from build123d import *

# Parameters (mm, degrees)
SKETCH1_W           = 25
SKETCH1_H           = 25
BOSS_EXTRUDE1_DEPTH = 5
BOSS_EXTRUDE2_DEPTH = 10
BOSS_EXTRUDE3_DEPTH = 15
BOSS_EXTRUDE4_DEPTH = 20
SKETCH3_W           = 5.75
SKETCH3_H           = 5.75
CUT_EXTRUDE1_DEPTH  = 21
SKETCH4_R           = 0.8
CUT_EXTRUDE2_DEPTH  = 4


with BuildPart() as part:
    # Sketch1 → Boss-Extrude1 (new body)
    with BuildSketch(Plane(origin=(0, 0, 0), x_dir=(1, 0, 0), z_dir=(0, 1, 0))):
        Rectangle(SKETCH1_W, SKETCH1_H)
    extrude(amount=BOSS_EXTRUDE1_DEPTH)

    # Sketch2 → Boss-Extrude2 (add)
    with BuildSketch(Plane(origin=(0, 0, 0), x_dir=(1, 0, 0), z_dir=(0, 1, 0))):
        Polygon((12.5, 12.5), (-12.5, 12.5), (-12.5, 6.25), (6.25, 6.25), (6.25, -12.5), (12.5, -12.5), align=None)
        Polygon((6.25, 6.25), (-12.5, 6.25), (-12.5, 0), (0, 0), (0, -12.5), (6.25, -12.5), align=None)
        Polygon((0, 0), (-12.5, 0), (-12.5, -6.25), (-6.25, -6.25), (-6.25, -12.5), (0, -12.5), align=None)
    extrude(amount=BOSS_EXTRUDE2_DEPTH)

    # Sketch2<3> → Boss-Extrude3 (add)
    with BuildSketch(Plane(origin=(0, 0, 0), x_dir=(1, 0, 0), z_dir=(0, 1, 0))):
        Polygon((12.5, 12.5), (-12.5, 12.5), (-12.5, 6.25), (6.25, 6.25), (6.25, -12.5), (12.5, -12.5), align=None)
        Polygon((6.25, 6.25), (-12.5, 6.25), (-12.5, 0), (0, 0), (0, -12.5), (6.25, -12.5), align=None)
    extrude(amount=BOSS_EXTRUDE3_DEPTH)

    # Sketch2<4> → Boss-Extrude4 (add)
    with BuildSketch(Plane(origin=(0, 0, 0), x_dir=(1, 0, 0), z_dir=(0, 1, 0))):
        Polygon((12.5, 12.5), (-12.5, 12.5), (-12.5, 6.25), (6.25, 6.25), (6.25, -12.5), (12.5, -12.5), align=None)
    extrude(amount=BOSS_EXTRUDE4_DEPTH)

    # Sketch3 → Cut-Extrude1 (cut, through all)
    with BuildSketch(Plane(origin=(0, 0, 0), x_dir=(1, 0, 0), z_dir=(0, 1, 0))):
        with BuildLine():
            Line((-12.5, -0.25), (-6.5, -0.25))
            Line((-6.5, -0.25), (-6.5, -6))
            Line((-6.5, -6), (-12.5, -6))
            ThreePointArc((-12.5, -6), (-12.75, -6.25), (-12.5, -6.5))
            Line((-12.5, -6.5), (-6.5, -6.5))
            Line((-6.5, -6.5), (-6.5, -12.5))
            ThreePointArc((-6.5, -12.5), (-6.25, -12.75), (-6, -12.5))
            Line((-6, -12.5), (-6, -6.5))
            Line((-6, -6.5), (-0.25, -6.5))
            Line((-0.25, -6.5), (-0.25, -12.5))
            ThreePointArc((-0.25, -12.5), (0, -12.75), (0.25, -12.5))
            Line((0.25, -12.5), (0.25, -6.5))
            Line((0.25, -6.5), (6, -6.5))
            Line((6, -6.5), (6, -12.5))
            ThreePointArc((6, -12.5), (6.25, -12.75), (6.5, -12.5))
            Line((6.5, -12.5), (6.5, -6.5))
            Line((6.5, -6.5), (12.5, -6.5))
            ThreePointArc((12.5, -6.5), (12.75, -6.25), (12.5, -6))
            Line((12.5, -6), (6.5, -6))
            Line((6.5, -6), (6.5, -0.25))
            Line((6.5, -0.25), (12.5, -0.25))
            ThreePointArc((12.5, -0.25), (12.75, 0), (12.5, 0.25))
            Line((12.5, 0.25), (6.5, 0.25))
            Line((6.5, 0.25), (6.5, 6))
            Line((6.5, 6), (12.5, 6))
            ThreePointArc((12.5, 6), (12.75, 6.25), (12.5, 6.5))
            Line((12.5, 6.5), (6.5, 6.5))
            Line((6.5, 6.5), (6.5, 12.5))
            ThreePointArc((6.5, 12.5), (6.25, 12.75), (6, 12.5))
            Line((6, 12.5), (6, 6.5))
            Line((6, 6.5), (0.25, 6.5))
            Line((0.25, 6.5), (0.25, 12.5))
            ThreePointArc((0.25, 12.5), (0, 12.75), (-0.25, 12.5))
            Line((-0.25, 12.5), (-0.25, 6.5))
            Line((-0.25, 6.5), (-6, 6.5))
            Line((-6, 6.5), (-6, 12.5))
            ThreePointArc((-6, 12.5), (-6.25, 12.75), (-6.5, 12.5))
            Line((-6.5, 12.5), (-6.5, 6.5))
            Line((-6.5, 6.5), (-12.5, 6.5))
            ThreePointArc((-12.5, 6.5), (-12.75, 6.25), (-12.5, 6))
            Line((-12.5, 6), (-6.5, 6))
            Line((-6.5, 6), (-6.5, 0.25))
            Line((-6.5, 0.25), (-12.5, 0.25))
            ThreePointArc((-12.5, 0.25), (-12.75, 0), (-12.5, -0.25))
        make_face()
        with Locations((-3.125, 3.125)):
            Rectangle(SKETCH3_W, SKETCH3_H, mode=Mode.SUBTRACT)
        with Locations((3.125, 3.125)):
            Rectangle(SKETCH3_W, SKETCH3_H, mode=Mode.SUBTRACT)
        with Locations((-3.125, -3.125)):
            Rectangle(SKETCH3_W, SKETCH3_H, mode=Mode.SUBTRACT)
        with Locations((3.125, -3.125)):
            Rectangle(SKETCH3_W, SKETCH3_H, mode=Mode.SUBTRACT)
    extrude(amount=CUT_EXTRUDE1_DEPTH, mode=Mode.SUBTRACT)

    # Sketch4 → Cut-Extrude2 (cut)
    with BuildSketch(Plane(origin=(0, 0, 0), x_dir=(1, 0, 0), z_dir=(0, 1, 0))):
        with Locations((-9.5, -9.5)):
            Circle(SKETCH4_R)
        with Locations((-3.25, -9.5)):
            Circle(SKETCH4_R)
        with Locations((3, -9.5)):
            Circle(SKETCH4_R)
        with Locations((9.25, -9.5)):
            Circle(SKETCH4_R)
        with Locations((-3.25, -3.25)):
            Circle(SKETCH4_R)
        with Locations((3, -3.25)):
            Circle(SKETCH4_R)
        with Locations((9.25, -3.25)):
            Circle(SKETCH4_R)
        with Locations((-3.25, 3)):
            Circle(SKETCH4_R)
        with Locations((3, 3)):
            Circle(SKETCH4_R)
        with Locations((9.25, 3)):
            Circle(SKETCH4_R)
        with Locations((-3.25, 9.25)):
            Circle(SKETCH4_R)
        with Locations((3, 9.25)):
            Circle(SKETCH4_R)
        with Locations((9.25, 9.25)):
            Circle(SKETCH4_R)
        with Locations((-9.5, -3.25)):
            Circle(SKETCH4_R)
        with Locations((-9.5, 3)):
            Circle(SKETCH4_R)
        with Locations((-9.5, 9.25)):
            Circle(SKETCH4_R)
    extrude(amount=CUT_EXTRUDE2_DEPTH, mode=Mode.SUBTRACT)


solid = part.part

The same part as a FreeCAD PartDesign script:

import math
import FreeCAD as App
import Part
import Sketcher

V = App.Vector


def add_polygon(sketch, points):
    """Adds a closed chain of lines whose ends are joined by coincident constraints."""
    first, n = sketch.GeometryCount, len(points)
    for a, b in zip(points, points[1:] + points[:1]):
        sketch.addGeometry(Part.LineSegment(App.Vector(*a, 0), App.Vector(*b, 0)), False)
    for i in range(n):
        sketch.addConstraint(Sketcher.Constraint("Coincident", first + i, 2, first + (i + 1) % n, 1))

doc = App.newDocument("Part")
body = doc.addObject("PartDesign::Body", "Body")
body.AllowCompound = True

# Sketch on XZ plane
sketch1 = doc.addObject("Sketcher::SketchObject", "Sketch")
body.addObject(sketch1)
sketch1.AttachmentSupport = (doc.XZ_Plane, [""])
sketch1.MapMode = "FlatFace"
add_polygon(sketch1, [(-12, -12), (-12, 12), (12, 12), (12, -12)])  # lines 0-3
sketch1.addConstraint(Sketcher.Constraint("Vertical", 0))
sketch1.addConstraint(Sketcher.Constraint("Horizontal", 1))
sketch1.addConstraint(Sketcher.Constraint("Vertical", 2))
sketch1.addConstraint(Sketcher.Constraint("Horizontal", 3))
sketch1.addConstraint(Sketcher.Constraint("Symmetric", 0, 2, 2, 2, -1, 1))
sketch1.addConstraint(Sketcher.Constraint("Equal", 3, 0))
sketch1.addConstraint(Sketcher.Constraint("DistanceX", 1, 1, 1, 2, 25.0))
pad1 = doc.addObject("PartDesign::Pad", "Pad")
body.addObject(pad1)
pad1.Profile = sketch1
pad1.Length = 5
pad1.Reversed = True

# Sketch on XZ plane
sketch2 = doc.addObject("Sketcher::SketchObject", "Sketch001")
body.addObject(sketch2)
sketch2.AttachmentSupport = (doc.XZ_Plane, [""])
sketch2.MapMode = "FlatFace"
add_polygon(sketch2, [(12, -12), (-12, -12), (-12, 6), (-6, 6), (-6, 12), (12, 12)])  # lines 0-5
sketch2.addConstraint(Sketcher.Constraint("Horizontal", 0))
sketch2.addConstraint(Sketcher.Constraint("Vertical", 1))
sketch2.addConstraint(Sketcher.Constraint("Horizontal", 2))
sketch2.addConstraint(Sketcher.Constraint("Vertical", 3))
sketch2.addConstraint(Sketcher.Constraint("Horizontal", 4))
sketch2.addConstraint(Sketcher.Constraint("Vertical", 5))
sketch2.addConstraint(Sketcher.Constraint("Symmetric", 0, 2, 4, 2, -1, 1))
sketch2.addConstraint(Sketcher.Constraint("Equal", 4, 1))
sketch2.addConstraint(Sketcher.Constraint("Equal", 2, 3))
sketch2.addConstraint(Sketcher.Constraint("DistanceX", 0, 2, 0, 1, 25.0))
sketch2.addConstraint(Sketcher.Constraint("DistanceX", 2, 1, 2, 2, 6.25))
pad2 = doc.addObject("PartDesign::Pad", "Pad001")
body.addObject(pad2)
pad2.Profile = sketch2
pad2.Length = 10
pad2.Reversed = True

# Sketch on XZ plane
sketch3 = doc.addObject("Sketcher::SketchObject", "Sketch002")
body.addObject(sketch3)
sketch3.AttachmentSupport = (doc.XZ_Plane, [""])
sketch3.MapMode = "FlatFace"
add_polygon(sketch3, [(12, -12), (-12, -12), (-12, 0), (0, 0), (0, 12), (12, 12)])  # lines 0-5
sketch3.addConstraint(Sketcher.Constraint("Horizontal", 0))
sketch3.addConstraint(Sketcher.Constraint("Vertical", 1))
sketch3.addConstraint(Sketcher.Constraint("Horizontal", 2))
sketch3.addConstraint(Sketcher.Constraint("Vertical", 3))
sketch3.addConstraint(Sketcher.Constraint("Horizontal", 4))
sketch3.addConstraint(Sketcher.Constraint("Vertical", 5))
sketch3.addConstraint(Sketcher.Constraint("Coincident", 2, 2, -1, 1))
sketch3.addConstraint(Sketcher.Constraint("Symmetric", 0, 2, 4, 2, -1, 1))
sketch3.addConstraint(Sketcher.Constraint("Equal", 4, 1))
sketch3.addConstraint(Sketcher.Constraint("DistanceX", 0, 2, 0, 1, 25.0))
pad3 = doc.addObject("PartDesign::Pad", "Pad002")
body.addObject(pad3)
pad3.Profile = sketch3
pad3.Length = 15
pad3.Reversed = True

# Sketch on XZ plane
sketch4 = doc.addObject("Sketcher::SketchObject", "Sketch003")
body.addObject(sketch4)
sketch4.AttachmentSupport = (doc.XZ_Plane, [""])
sketch4.MapMode = "FlatFace"
add_polygon(sketch4, [(12, -12), (-12, -12), (-12, -6), (6, -6), (6, 12), (12, 12)])  # lines 0-5
sketch4.addConstraint(Sketcher.Constraint("Horizontal", 0))
sketch4.addConstraint(Sketcher.Constraint("Vertical", 1))
sketch4.addConstraint(Sketcher.Constraint("Horizontal", 2))
sketch4.addConstraint(Sketcher.Constraint("Vertical", 3))
sketch4.addConstraint(Sketcher.Constraint("Horizontal", 4))
sketch4.addConstraint(Sketcher.Constraint("Vertical", 5))
sketch4.addConstraint(Sketcher.Constraint("Symmetric", 0, 2, 4, 2, -1, 1))
sketch4.addConstraint(Sketcher.Constraint("Equal", 4, 1))
sketch4.addConstraint(Sketcher.Constraint("Equal", 2, 3))
sketch4.addConstraint(Sketcher.Constraint("DistanceX", 0, 2, 0, 1, 25.0))
sketch4.addConstraint(Sketcher.Constraint("DistanceX", 2, 1, 2, 2, 18.75))
pad4 = doc.addObject("PartDesign::Pad", "Pad003")
body.addObject(pad4)
pad4.Profile = sketch4
pad4.Length = 20
pad4.Reversed = True

# Sketch on XZ plane
sketch5 = doc.addObject("Sketcher::SketchObject", "Sketch004")
body.addObject(sketch5)
sketch5.AttachmentSupport = (doc.XZ_Plane, [""])
sketch5.MapMode = "FlatFace"
sketch5.addGeometry(Part.LineSegment(V(-12.5, 0.25, 0), V(-6.5, 0.25, 0)), False)  # 0
sketch5.addGeometry(Part.LineSegment(V(-6.5, 0.25, 0), V(-6.5, 6, 0)), False)  # 1
sketch5.addGeometry(Part.LineSegment(V(-6.5, 6, 0), V(-12.5, 6, 0)), False)  # 2
sketch5.addGeometry(Part.ArcOfCircle(Part.Circle(V(-12.5, 6.25, 0), V(0, 0, 1), 0.25), math.radians(90), math.radians(270)), False)  # 3
sketch5.addGeometry(Part.LineSegment(V(-12.5, 6.5, 0), V(-6.5, 6.5, 0)), False)  # 4
sketch5.addGeometry(Part.LineSegment(V(-6.5, 6.5, 0), V(-6.5, 12.5, 0)), False)  # 5
sketch5.addGeometry(Part.ArcOfCircle(Part.Circle(V(-6.25, 12.5, 0), V(0, 0, 1), 0.25), math.radians(0), math.radians(180)), False)  # 6
sketch5.addGeometry(Part.LineSegment(V(-6, 12.5, 0), V(-6, 6.5, 0)), False)  # 7
sketch5.addGeometry(Part.LineSegment(V(-6, 6.5, 0), V(-0.25, 6.5, 0)), False)  # 8
sketch5.addGeometry(Part.LineSegment(V(-0.25, 6.5, 0), V(-0.25, 12.5, 0)), False)  # 9
sketch5.addGeometry(Part.ArcOfCircle(Part.Circle(V(0, 12.5, 0), V(0, 0, 1), 0.25), math.radians(0), math.radians(180)), False)  # 10
sketch5.addGeometry(Part.LineSegment(V(0.25, 12.5, 0), V(0.25, 6.5, 0)), False)  # 11
sketch5.addGeometry(Part.LineSegment(V(0.25, 6.5, 0), V(6, 6.5, 0)), False)  # 12
sketch5.addGeometry(Part.LineSegment(V(6, 6.5, 0), V(6, 12.5, 0)), False)  # 13
sketch5.addGeometry(Part.ArcOfCircle(Part.Circle(V(6.25, 12.5, 0), V(0, 0, 1), 0.25), math.radians(0), math.radians(180)), False)  # 14
sketch5.addGeometry(Part.LineSegment(V(6.5, 12.5, 0), V(6.5, 6.5, 0)), False)  # 15
sketch5.addGeometry(Part.LineSegment(V(6.5, 6.5, 0), V(12.5, 6.5, 0)), False)  # 16
sketch5.addGeometry(Part.ArcOfCircle(Part.Circle(V(12.5, 6.25, 0), V(0, 0, 1), 0.25), math.radians(-90), math.radians(90)), False)  # 17
sketch5.addGeometry(Part.LineSegment(V(12.5, 6, 0), V(6.5, 6, 0)), False)  # 18
sketch5.addGeometry(Part.LineSegment(V(6.5, 6, 0), V(6.5, 0.25, 0)), False)  # 19
sketch5.addGeometry(Part.LineSegment(V(6.5, 0.25, 0), V(12.5, 0.25, 0)), False)  # 20
sketch5.addGeometry(Part.ArcOfCircle(Part.Circle(V(12.5, 0, 0), V(0, 0, 1), 0.25), math.radians(-90), math.radians(90)), False)  # 21
sketch5.addGeometry(Part.LineSegment(V(12.5, -0.25, 0), V(6.5, -0.25, 0)), False)  # 22
sketch5.addGeometry(Part.LineSegment(V(6.5, -0.25, 0), V(6.5, -6, 0)), False)  # 23
sketch5.addGeometry(Part.LineSegment(V(6.5, -6, 0), V(12.5, -6, 0)), False)  # 24
sketch5.addGeometry(Part.ArcOfCircle(Part.Circle(V(12.5, -6.25, 0), V(0, 0, 1), 0.25), math.radians(-90), math.radians(90)), False)  # 25
sketch5.addGeometry(Part.LineSegment(V(12.5, -6.5, 0), V(6.5, -6.5, 0)), False)  # 26
sketch5.addGeometry(Part.LineSegment(V(6.5, -6.5, 0), V(6.5, -12.5, 0)), False)  # 27
sketch5.addGeometry(Part.ArcOfCircle(Part.Circle(V(6.25, -12.5, 0), V(0, 0, 1), 0.25), math.radians(180), math.radians(360)), False)  # 28
sketch5.addGeometry(Part.LineSegment(V(6, -12.5, 0), V(6, -6.5, 0)), False)  # 29
sketch5.addGeometry(Part.LineSegment(V(6, -6.5, 0), V(0.25, -6.5, 0)), False)  # 30
sketch5.addGeometry(Part.LineSegment(V(0.25, -6.5, 0), V(0.25, -12.5, 0)), False)  # 31
sketch5.addGeometry(Part.ArcOfCircle(Part.Circle(V(0, -12.5, 0), V(0, 0, 1), 0.25), math.radians(180), math.radians(360)), False)  # 32
sketch5.addGeometry(Part.LineSegment(V(-0.25, -12.5, 0), V(-0.25, -6.5, 0)), False)  # 33
sketch5.addGeometry(Part.LineSegment(V(-0.25, -6.5, 0), V(-6, -6.5, 0)), False)  # 34
sketch5.addGeometry(Part.LineSegment(V(-6, -6.5, 0), V(-6, -12.5, 0)), False)  # 35
sketch5.addGeometry(Part.ArcOfCircle(Part.Circle(V(-6.25, -12.5, 0), V(0, 0, 1), 0.25), math.radians(180), math.radians(360)), False)  # 36
sketch5.addGeometry(Part.LineSegment(V(-6.5, -12.5, 0), V(-6.5, -6.5, 0)), False)  # 37
sketch5.addGeometry(Part.LineSegment(V(-6.5, -6.5, 0), V(-12.5, -6.5, 0)), False)  # 38
sketch5.addGeometry(Part.ArcOfCircle(Part.Circle(V(-12.5, -6.25, 0), V(0, 0, 1), 0.25), math.radians(90), math.radians(270)), False)  # 39
sketch5.addGeometry(Part.LineSegment(V(-12.5, -6, 0), V(-6.5, -6, 0)), False)  # 40
sketch5.addGeometry(Part.LineSegment(V(-6.5, -6, 0), V(-6.5, -0.25, 0)), False)  # 41
sketch5.addGeometry(Part.LineSegment(V(-6.5, -0.25, 0), V(-12.5, -0.25, 0)), False)  # 42
sketch5.addGeometry(Part.ArcOfCircle(Part.Circle(V(-12.5, 0, 0), V(0, 0, 1), 0.25), math.radians(90), math.radians(270)), False)  # 43
add_polygon(sketch5, [(-0.25, 6), (-6, 6), (-6, 0.25), (-0.25, 0.25)])  # lines 44-47
add_polygon(sketch5, [(6, 6), (0.25, 6), (0.25, 0.25), (6, 0.25)])  # lines 48-51
add_polygon(sketch5, [(-0.25, -0.25), (-6, -0.25), (-6, -6), (-0.25, -6)])  # lines 52-55
add_polygon(sketch5, [(6, -0.25), (0.25, -0.25), (0.25, -6), (6, -6)])  # lines 56-59
sketch5.addConstraint(Sketcher.Constraint("Coincident", 0, 2, 1, 1))
sketch5.addConstraint(Sketcher.Constraint("Coincident", 1, 2, 2, 1))
sketch5.addConstraint(Sketcher.Constraint("Tangent", 2, 2, 3, 2))
sketch5.addConstraint(Sketcher.Constraint("Tangent", 3, 1, 4, 1))
sketch5.addConstraint(Sketcher.Constraint("Coincident", 4, 2, 5, 1))
sketch5.addConstraint(Sketcher.Constraint("Tangent", 5, 2, 6, 2))
sketch5.addConstraint(Sketcher.Constraint("Tangent", 6, 1, 7, 1))
sketch5.addConstraint(Sketcher.Constraint("Coincident", 7, 2, 8, 1))
sketch5.addConstraint(Sketcher.Constraint("Coincident", 8, 2, 9, 1))
sketch5.addConstraint(Sketcher.Constraint("Tangent", 9, 2, 10, 2))
sketch5.addConstraint(Sketcher.Constraint("Tangent", 10, 1, 11, 1))
sketch5.addConstraint(Sketcher.Constraint("Coincident", 11, 2, 12, 1))
sketch5.addConstraint(Sketcher.Constraint("Coincident", 12, 2, 13, 1))
sketch5.addConstraint(Sketcher.Constraint("Tangent", 13, 2, 14, 2))
sketch5.addConstraint(Sketcher.Constraint("Tangent", 14, 1, 15, 1))
sketch5.addConstraint(Sketcher.Constraint("Coincident", 15, 2, 16, 1))
sketch5.addConstraint(Sketcher.Constraint("Tangent", 16, 2, 17, 2))
sketch5.addConstraint(Sketcher.Constraint("Tangent", 17, 1, 18, 1))
sketch5.addConstraint(Sketcher.Constraint("Coincident", 18, 2, 19, 1))
sketch5.addConstraint(Sketcher.Constraint("Coincident", 19, 2, 20, 1))
sketch5.addConstraint(Sketcher.Constraint("Tangent", 20, 2, 21, 2))
sketch5.addConstraint(Sketcher.Constraint("Tangent", 21, 1, 22, 1))
sketch5.addConstraint(Sketcher.Constraint("Coincident", 22, 2, 23, 1))
sketch5.addConstraint(Sketcher.Constraint("Coincident", 23, 2, 24, 1))
sketch5.addConstraint(Sketcher.Constraint("Tangent", 24, 2, 25, 2))
sketch5.addConstraint(Sketcher.Constraint("Tangent", 25, 1, 26, 1))
sketch5.addConstraint(Sketcher.Constraint("Coincident", 26, 2, 27, 1))
sketch5.addConstraint(Sketcher.Constraint("Tangent", 27, 2, 28, 2))
sketch5.addConstraint(Sketcher.Constraint("Tangent", 28, 1, 29, 1))
sketch5.addConstraint(Sketcher.Constraint("Coincident", 29, 2, 30, 1))
sketch5.addConstraint(Sketcher.Constraint("Coincident", 30, 2, 31, 1))
sketch5.addConstraint(Sketcher.Constraint("Tangent", 31, 2, 32, 2))
sketch5.addConstraint(Sketcher.Constraint("Tangent", 32, 1, 33, 1))
sketch5.addConstraint(Sketcher.Constraint("Coincident", 33, 2, 34, 1))
sketch5.addConstraint(Sketcher.Constraint("Coincident", 34, 2, 35, 1))
sketch5.addConstraint(Sketcher.Constraint("Tangent", 35, 2, 36, 2))
sketch5.addConstraint(Sketcher.Constraint("Tangent", 36, 1, 37, 1))
sketch5.addConstraint(Sketcher.Constraint("Coincident", 37, 2, 38, 1))
sketch5.addConstraint(Sketcher.Constraint("Tangent", 38, 2, 39, 2))
sketch5.addConstraint(Sketcher.Constraint("Tangent", 39, 1, 40, 1))
sketch5.addConstraint(Sketcher.Constraint("Coincident", 40, 2, 41, 1))
sketch5.addConstraint(Sketcher.Constraint("Coincident", 41, 2, 42, 1))
sketch5.addConstraint(Sketcher.Constraint("Tangent", 42, 2, 43, 2))
sketch5.addConstraint(Sketcher.Constraint("Tangent", 43, 1, 0, 1))
sketch5.addConstraint(Sketcher.Constraint("Horizontal", 0))
sketch5.addConstraint(Sketcher.Constraint("Vertical", 1))
sketch5.addConstraint(Sketcher.Constraint("Horizontal", 2))
sketch5.addConstraint(Sketcher.Constraint("Horizontal", 4))
sketch5.addConstraint(Sketcher.Constraint("Vertical", 5))
sketch5.addConstraint(Sketcher.Constraint("Vertical", 7))
sketch5.addConstraint(Sketcher.Constraint("Horizontal", 8))
sketch5.addConstraint(Sketcher.Constraint("Vertical", 9))
sketch5.addConstraint(Sketcher.Constraint("Vertical", 11))
sketch5.addConstraint(Sketcher.Constraint("Horizontal", 12))
sketch5.addConstraint(Sketcher.Constraint("Vertical", 13))
sketch5.addConstraint(Sketcher.Constraint("Vertical", 15))
sketch5.addConstraint(Sketcher.Constraint("Horizontal", 16))
sketch5.addConstraint(Sketcher.Constraint("Horizontal", 18))
sketch5.addConstraint(Sketcher.Constraint("Vertical", 19))
sketch5.addConstraint(Sketcher.Constraint("Horizontal", 20))
sketch5.addConstraint(Sketcher.Constraint("Horizontal", 22))
sketch5.addConstraint(Sketcher.Constraint("Vertical", 23))
sketch5.addConstraint(Sketcher.Constraint("Horizontal", 24))
sketch5.addConstraint(Sketcher.Constraint("Horizontal", 26))
sketch5.addConstraint(Sketcher.Constraint("Vertical", 27))
sketch5.addConstraint(Sketcher.Constraint("Vertical", 29))
sketch5.addConstraint(Sketcher.Constraint("Horizontal", 30))
sketch5.addConstraint(Sketcher.Constraint("Vertical", 31))
sketch5.addConstraint(Sketcher.Constraint("Vertical", 33))
sketch5.addConstraint(Sketcher.Constraint("Horizontal", 34))
sketch5.addConstraint(Sketcher.Constraint("Vertical", 35))
sketch5.addConstraint(Sketcher.Constraint("Vertical", 37))
sketch5.addConstraint(Sketcher.Constraint("Horizontal", 38))
sketch5.addConstraint(Sketcher.Constraint("Horizontal", 40))
sketch5.addConstraint(Sketcher.Constraint("Vertical", 41))
sketch5.addConstraint(Sketcher.Constraint("Horizontal", 42))
sketch5.addConstraint(Sketcher.Constraint("Horizontal", 44))
sketch5.addConstraint(Sketcher.Constraint("Vertical", 45))
sketch5.addConstraint(Sketcher.Constraint("Horizontal", 46))
sketch5.addConstraint(Sketcher.Constraint("Vertical", 47))
sketch5.addConstraint(Sketcher.Constraint("Horizontal", 48))
sketch5.addConstraint(Sketcher.Constraint("Vertical", 49))
sketch5.addConstraint(Sketcher.Constraint("Horizontal", 50))
sketch5.addConstraint(Sketcher.Constraint("Vertical", 51))
sketch5.addConstraint(Sketcher.Constraint("Horizontal", 52))
sketch5.addConstraint(Sketcher.Constraint("Vertical", 53))
sketch5.addConstraint(Sketcher.Constraint("Horizontal", 54))
sketch5.addConstraint(Sketcher.Constraint("Vertical", 55))
sketch5.addConstraint(Sketcher.Constraint("Horizontal", 56))
sketch5.addConstraint(Sketcher.Constraint("Vertical", 57))
sketch5.addConstraint(Sketcher.Constraint("Horizontal", 58))
sketch5.addConstraint(Sketcher.Constraint("Vertical", 59))
sketch5.addConstraint(Sketcher.Constraint("Equal", 3, 6))
sketch5.addConstraint(Sketcher.Constraint("Equal", 6, 10))
sketch5.addConstraint(Sketcher.Constraint("Equal", 10, 14))
sketch5.addConstraint(Sketcher.Constraint("Equal", 14, 17))
sketch5.addConstraint(Sketcher.Constraint("Equal", 17, 21))
sketch5.addConstraint(Sketcher.Constraint("Equal", 21, 25))
sketch5.addConstraint(Sketcher.Constraint("Equal", 25, 28))
sketch5.addConstraint(Sketcher.Constraint("Equal", 28, 32))
sketch5.addConstraint(Sketcher.Constraint("Equal", 32, 36))
sketch5.addConstraint(Sketcher.Constraint("Equal", 36, 39))
sketch5.addConstraint(Sketcher.Constraint("Equal", 39, 43))
sketch5.addConstraint(Sketcher.Constraint("Symmetric", 3, 3, 25, 3, -1, 1))
sketch5.addConstraint(Sketcher.Constraint("Symmetric", 6, 3, 28, 3, -1, 1))
sketch5.addConstraint(Sketcher.Constraint("Symmetric", 10, 3, 32, 3, -1, 1))
sketch5.addConstraint(Sketcher.Constraint("Symmetric", 14, 3, 36, 3, -1, 1))
sketch5.addConstraint(Sketcher.Constraint("Symmetric", 17, 3, 39, 3, -1, 1))
sketch5.addConstraint(Sketcher.Constraint("Symmetric", 21, 3, 43, 3, -1, 1))
sketch5.addConstraint(Sketcher.Constraint("Symmetric", 50, 2, 52, 2, -1, 1))
sketch5.addConstraint(Sketcher.Constraint("Symmetric", 48, 2, 54, 2, -1, 1))
sketch5.addConstraint(Sketcher.Constraint("Symmetric", 46, 2, 56, 2, -1, 1))
sketch5.addConstraint(Sketcher.Constraint("Symmetric", 44, 2, 58, 2, -1, 1))
sketch5.addConstraint(Sketcher.Constraint("Symmetric", 6, 3, 14, 3, -2))
sketch5.addConstraint(Sketcher.Constraint("Symmetric", 3, 3, 17, 3, -2))
sketch5.addConstraint(Sketcher.Constraint("Symmetric", 8, 2, 11, 2, -2))
sketch5.addConstraint(Sketcher.Constraint("Symmetric", 0, 2, 19, 2, -2))
sketch5.addConstraint(Sketcher.Constraint("Symmetric", 47, 2, 48, 2, -2))
sketch5.addConstraint(Sketcher.Constraint("Symmetric", 45, 2, 50, 2, -2))
sketch5.addConstraint(Sketcher.Constraint("Horizontal", 6, 3, 10, 3))
sketch5.addConstraint(Sketcher.Constraint("Horizontal", 4, 2, 7, 2))
sketch5.addConstraint(Sketcher.Constraint("Horizontal", 26, 2, 29, 2))
sketch5.addConstraint(Sketcher.Constraint("Horizontal", 30, 2, 33, 2))
sketch5.addConstraint(Sketcher.Constraint("Horizontal", 18, 2, 44, 2))
sketch5.addConstraint(Sketcher.Constraint("Horizontal", 43, 1, 45, 2))
sketch5.addConstraint(Sketcher.Constraint("Vertical", 17, 3, 21, 3))
sketch5.addConstraint(Sketcher.Constraint("Vertical", 1, 2, 4, 2))
sketch5.addConstraint(Sketcher.Constraint("Vertical", 19, 2, 22, 2))
sketch5.addConstraint(Sketcher.Constraint("Vertical", 37, 2, 40, 2))
sketch5.addConstraint(Sketcher.Constraint("Vertical", 35, 2, 44, 2))
sketch5.addConstraint(Sketcher.Constraint("Vertical", 33, 2, 46, 2))
sketch5.addConstraint(Sketcher.Constraint("Equal", 58, 1))
sketch5.addConstraint(Sketcher.Constraint("Equal", 42, 5))
sketch5.addConstraint(Sketcher.Constraint("DistanceX", 0, 1, 0, 2, 6.0))
sketch5.addConstraint(Sketcher.Constraint("Radius", 3, 0.25))
sketch5.addConstraint(Sketcher.Constraint("DistanceY", -1, 1, 1, 2, 6.0))
pocket1 = doc.addObject("PartDesign::Pocket", "Pocket")
body.addObject(pocket1)
pocket1.Profile = sketch5
pocket1.Type = "ThroughAll"

# Sketch on XZ plane
sketch6 = doc.addObject("Sketcher::SketchObject", "Sketch005")
body.addObject(sketch6)
sketch6.AttachmentSupport = (doc.XZ_Plane, [""])
sketch6.MapMode = "FlatFace"
sketch6.addGeometry(Part.Circle(V(-9.5, 9.5, 0), V(0, 0, 1), 0.8), False)
sketch6.addGeometry(Part.Circle(V(-3.2, 9.5, 0), V(0, 0, 1), 0.8), False)
sketch6.addGeometry(Part.Circle(V(3, 9.5, 0), V(0, 0, 1), 0.8), False)
sketch6.addGeometry(Part.Circle(V(9.2, 9.5, 0), V(0, 0, 1), 0.8), False)
sketch6.addGeometry(Part.Circle(V(-3.2, 3.2, 0), V(0, 0, 1), 0.8), False)
sketch6.addGeometry(Part.Circle(V(3, 3.2, 0), V(0, 0, 1), 0.8), False)
sketch6.addGeometry(Part.Circle(V(9.2, 3.2, 0), V(0, 0, 1), 0.8), False)
sketch6.addGeometry(Part.Circle(V(-3.2, -3, 0), V(0, 0, 1), 0.8), False)
sketch6.addGeometry(Part.Circle(V(3, -3, 0), V(0, 0, 1), 0.8), False)
sketch6.addGeometry(Part.Circle(V(9.2, -3, 0), V(0, 0, 1), 0.8), False)
sketch6.addGeometry(Part.Circle(V(-3.2, -9.2, 0), V(0, 0, 1), 0.8), False)
sketch6.addGeometry(Part.Circle(V(3, -9.2, 0), V(0, 0, 1), 0.8), False)
sketch6.addGeometry(Part.Circle(V(9.2, -9.2, 0), V(0, 0, 1), 0.8), False)
sketch6.addGeometry(Part.Circle(V(-9.5, 3.2, 0), V(0, 0, 1), 0.8), False)
sketch6.addGeometry(Part.Circle(V(-9.5, -3, 0), V(0, 0, 1), 0.8), False)
sketch6.addGeometry(Part.Circle(V(-9.5, -9.2, 0), V(0, 0, 1), 0.8), False)
sketch6.addConstraint(Sketcher.Constraint("Equal", 0, 1))
sketch6.addConstraint(Sketcher.Constraint("Equal", 1, 2))
sketch6.addConstraint(Sketcher.Constraint("Equal", 2, 3))
sketch6.addConstraint(Sketcher.Constraint("Equal", 3, 4))
sketch6.addConstraint(Sketcher.Constraint("Equal", 4, 5))
sketch6.addConstraint(Sketcher.Constraint("Equal", 5, 6))
sketch6.addConstraint(Sketcher.Constraint("Equal", 6, 7))
sketch6.addConstraint(Sketcher.Constraint("Equal", 7, 8))
sketch6.addConstraint(Sketcher.Constraint("Equal", 8, 9))
sketch6.addConstraint(Sketcher.Constraint("Equal", 9, 10))
sketch6.addConstraint(Sketcher.Constraint("Equal", 10, 11))
sketch6.addConstraint(Sketcher.Constraint("Equal", 11, 12))
sketch6.addConstraint(Sketcher.Constraint("Equal", 12, 13))
sketch6.addConstraint(Sketcher.Constraint("Equal", 13, 14))
sketch6.addConstraint(Sketcher.Constraint("Equal", 14, 15))
sketch6.addConstraint(Sketcher.Constraint("Horizontal", 0, 3, 1, 3))
sketch6.addConstraint(Sketcher.Constraint("Horizontal", 1, 3, 2, 3))
sketch6.addConstraint(Sketcher.Constraint("Horizontal", 2, 3, 3, 3))
sketch6.addConstraint(Sketcher.Constraint("Horizontal", 4, 3, 5, 3))
sketch6.addConstraint(Sketcher.Constraint("Horizontal", 5, 3, 6, 3))
sketch6.addConstraint(Sketcher.Constraint("Horizontal", 7, 3, 8, 3))
sketch6.addConstraint(Sketcher.Constraint("Horizontal", 8, 3, 9, 3))
sketch6.addConstraint(Sketcher.Constraint("Horizontal", 10, 3, 11, 3))
sketch6.addConstraint(Sketcher.Constraint("Horizontal", 11, 3, 12, 3))
sketch6.addConstraint(Sketcher.Constraint("Horizontal", 6, 3, 13, 3))
sketch6.addConstraint(Sketcher.Constraint("Horizontal", 9, 3, 14, 3))
sketch6.addConstraint(Sketcher.Constraint("Horizontal", 12, 3, 15, 3))
sketch6.addConstraint(Sketcher.Constraint("Vertical", 1, 3, 4, 3))
sketch6.addConstraint(Sketcher.Constraint("Vertical", 2, 3, 5, 3))
sketch6.addConstraint(Sketcher.Constraint("Vertical", 3, 3, 6, 3))
sketch6.addConstraint(Sketcher.Constraint("Vertical", 4, 3, 7, 3))
sketch6.addConstraint(Sketcher.Constraint("Vertical", 5, 3, 8, 3))
sketch6.addConstraint(Sketcher.Constraint("Vertical", 6, 3, 9, 3))
sketch6.addConstraint(Sketcher.Constraint("Vertical", 7, 3, 10, 3))
sketch6.addConstraint(Sketcher.Constraint("Vertical", 8, 3, 11, 3))
sketch6.addConstraint(Sketcher.Constraint("Vertical", 9, 3, 12, 3))
sketch6.addConstraint(Sketcher.Constraint("Vertical", 0, 3, 13, 3))
sketch6.addConstraint(Sketcher.Constraint("Vertical", 13, 3, 14, 3))
sketch6.addConstraint(Sketcher.Constraint("Vertical", 14, 3, 15, 3))
sketch6.addConstraint(Sketcher.Constraint("Diameter", 0, 1.6))
sketch6.addConstraint(Sketcher.Constraint("DistanceX", -1, 1, 2, 3, 3.0))
sketch6.addConstraint(Sketcher.Constraint("DistanceY", 7, 3, -1, 1, 3.0))
sketch6.addConstraint(Sketcher.Constraint("DistanceX", 0, 3, -1, 1, 9.5))
sketch6.addConstraint(Sketcher.Constraint("DistanceY", -1, 1, 0, 3, 9.5))
sketch6.addConstraint(Sketcher.Constraint("DistanceX", 1, 3, 3, 3, 12.5))
sketch6.addConstraint(Sketcher.Constraint("DistanceY", 10, 3, 4, 3, 12.5))
sketch6.addConstraint(Sketcher.Constraint("DistanceX", 1, 3, -1, 1, 3.25))
sketch6.addConstraint(Sketcher.Constraint("DistanceY", -1, 1, 4, 3, 3.25))
pocket2 = doc.addObject("PartDesign::Pocket", "Pocket001")
body.addObject(pocket2)
pocket2.Profile = sketch6
pocket2.Length = 4

doc.recompute()
